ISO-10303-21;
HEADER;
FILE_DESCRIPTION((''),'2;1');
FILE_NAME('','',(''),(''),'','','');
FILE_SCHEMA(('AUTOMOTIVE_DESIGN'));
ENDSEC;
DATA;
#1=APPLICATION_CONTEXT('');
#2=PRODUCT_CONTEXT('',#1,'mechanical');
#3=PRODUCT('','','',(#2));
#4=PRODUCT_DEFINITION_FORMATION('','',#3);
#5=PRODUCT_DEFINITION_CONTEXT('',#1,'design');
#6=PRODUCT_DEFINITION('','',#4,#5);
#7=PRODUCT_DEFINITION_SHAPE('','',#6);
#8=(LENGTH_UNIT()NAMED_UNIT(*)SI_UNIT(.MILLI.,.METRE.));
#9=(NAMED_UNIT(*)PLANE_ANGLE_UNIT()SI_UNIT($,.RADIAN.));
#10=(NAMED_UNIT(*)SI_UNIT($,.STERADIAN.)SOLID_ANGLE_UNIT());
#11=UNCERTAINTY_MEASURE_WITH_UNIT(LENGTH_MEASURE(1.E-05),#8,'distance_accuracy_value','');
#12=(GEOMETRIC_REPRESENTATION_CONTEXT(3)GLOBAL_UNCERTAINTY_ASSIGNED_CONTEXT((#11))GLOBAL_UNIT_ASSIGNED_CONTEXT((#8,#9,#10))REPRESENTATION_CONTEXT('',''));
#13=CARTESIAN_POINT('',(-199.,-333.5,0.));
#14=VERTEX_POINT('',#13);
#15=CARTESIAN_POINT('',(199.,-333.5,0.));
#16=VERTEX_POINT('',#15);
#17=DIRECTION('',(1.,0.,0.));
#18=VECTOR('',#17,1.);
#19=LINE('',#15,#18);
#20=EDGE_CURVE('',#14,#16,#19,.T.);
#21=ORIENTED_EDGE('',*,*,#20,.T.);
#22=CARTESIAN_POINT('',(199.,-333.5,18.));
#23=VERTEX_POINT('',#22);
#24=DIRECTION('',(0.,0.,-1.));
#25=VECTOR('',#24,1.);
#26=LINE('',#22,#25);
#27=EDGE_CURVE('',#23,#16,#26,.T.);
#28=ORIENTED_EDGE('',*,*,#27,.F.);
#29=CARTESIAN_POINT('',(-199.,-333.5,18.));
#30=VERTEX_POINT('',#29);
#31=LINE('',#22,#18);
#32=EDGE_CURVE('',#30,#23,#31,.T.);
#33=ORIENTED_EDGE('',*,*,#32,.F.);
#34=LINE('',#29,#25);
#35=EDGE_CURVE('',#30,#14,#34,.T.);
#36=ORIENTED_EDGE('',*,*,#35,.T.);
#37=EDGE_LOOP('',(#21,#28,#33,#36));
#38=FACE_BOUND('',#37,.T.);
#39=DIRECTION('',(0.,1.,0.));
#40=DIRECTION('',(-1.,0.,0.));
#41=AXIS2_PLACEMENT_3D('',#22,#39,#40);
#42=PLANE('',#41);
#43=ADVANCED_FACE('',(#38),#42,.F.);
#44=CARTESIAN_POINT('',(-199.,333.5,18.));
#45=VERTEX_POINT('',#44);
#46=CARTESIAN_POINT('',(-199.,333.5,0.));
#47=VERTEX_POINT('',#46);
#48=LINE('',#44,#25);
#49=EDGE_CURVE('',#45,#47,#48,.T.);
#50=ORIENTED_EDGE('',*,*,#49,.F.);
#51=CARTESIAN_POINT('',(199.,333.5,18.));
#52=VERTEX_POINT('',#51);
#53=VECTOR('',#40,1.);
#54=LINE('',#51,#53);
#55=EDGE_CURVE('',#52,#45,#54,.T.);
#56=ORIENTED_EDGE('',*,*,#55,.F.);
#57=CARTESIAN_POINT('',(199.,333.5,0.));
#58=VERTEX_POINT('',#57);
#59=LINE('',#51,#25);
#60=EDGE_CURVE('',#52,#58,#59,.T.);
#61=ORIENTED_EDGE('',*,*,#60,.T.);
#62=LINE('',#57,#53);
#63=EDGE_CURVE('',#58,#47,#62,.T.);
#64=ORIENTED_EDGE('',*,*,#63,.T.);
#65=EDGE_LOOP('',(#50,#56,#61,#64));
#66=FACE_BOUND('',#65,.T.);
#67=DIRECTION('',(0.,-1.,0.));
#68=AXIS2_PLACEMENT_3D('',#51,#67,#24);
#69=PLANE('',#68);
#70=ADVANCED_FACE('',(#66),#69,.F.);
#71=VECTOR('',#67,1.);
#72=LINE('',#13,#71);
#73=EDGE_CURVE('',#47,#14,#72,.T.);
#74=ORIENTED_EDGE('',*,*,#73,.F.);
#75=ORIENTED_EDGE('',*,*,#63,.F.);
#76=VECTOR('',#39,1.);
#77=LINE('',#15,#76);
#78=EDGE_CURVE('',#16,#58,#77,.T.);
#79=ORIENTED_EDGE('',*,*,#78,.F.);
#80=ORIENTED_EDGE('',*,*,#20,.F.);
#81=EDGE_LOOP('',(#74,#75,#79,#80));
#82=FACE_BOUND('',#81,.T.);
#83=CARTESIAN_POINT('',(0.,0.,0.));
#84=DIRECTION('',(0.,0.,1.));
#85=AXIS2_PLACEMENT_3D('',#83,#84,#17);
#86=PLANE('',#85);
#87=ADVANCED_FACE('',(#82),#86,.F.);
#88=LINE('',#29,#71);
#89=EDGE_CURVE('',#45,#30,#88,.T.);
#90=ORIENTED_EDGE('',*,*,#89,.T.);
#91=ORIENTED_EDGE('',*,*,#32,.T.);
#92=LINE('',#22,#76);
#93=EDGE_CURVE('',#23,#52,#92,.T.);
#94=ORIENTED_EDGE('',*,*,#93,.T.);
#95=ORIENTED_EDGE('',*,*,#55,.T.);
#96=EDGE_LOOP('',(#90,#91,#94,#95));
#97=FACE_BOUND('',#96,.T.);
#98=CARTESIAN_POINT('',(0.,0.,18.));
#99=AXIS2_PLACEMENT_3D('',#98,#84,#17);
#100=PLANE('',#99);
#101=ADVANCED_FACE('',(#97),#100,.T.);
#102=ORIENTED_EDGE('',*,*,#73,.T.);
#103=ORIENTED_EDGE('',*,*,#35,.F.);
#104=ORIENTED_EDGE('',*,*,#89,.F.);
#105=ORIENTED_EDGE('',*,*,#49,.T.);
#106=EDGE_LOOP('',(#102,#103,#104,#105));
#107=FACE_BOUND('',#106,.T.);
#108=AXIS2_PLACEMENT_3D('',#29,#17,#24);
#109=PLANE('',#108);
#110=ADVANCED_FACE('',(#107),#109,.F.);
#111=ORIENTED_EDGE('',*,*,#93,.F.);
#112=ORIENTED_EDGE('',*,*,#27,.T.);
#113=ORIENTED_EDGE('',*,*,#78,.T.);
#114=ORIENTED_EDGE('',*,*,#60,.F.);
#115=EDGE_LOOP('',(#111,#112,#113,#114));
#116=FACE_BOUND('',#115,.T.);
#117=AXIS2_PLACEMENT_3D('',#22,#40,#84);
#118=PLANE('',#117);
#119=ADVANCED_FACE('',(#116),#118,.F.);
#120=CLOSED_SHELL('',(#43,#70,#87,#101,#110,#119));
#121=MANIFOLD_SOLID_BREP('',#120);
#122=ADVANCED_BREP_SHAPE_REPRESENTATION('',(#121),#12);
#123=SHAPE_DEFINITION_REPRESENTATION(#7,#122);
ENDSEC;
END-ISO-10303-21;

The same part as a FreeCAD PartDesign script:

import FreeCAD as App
import Part
import Sketcher
from FreeCAD import Vector

doc = App.newDocument("Part")
body = doc.addObject("PartDesign::Body", "Body")

sketch1 = body.newObject("Sketcher::SketchObject", "Sketch")
sketch1.AttachmentSupport = (doc.getObject("XY_Plane"), [""])
sketch1.MapMode = "FlatFace"
sketch1.addGeometry([
    Part.LineSegment(Vector(-199, 333.5, 0), Vector(-199, -333.5, 0)),
    Part.LineSegment(Vector(-199, -333.5, 0), Vector(199, -333.5, 0)),
    Part.LineSegment(Vector(199, -333.5, 0), Vector(199, 333.5, 0)),
    Part.LineSegment(Vector(199, 333.5, 0), Vector(-199, 333.5, 0)),
], False)
sketch1.addConstraint([
    Sketcher.Constraint("Coincident", 0, 2, 1, 1),
    Sketcher.Constraint("Coincident", 1, 2, 2, 1),
    Sketcher.Constraint("Coincident", 2, 2, 3, 1),
    Sketcher.Constraint("Coincident", 3, 2, 0, 1),
    Sketcher.Constraint("Vertical", 0),
    Sketcher.Constraint("Horizontal", 1),
    Sketcher.Constraint("Vertical", 2),
    Sketcher.Constraint("Horizontal", 3),
    Sketcher.Constraint("Symmetric", 0, 2, 2, 2, -1, 1),
    Sketcher.Constraint("DistanceX", 1, 1, 1, 2, 398.0),
    Sketcher.Constraint("DistanceY", 0, 2, 0, 1, 667.0),
])
pad1 = body.newObject("PartDesign::Pad", "Pad")
pad1.Profile = sketch1
pad1.Length = 18

doc.recompute()
